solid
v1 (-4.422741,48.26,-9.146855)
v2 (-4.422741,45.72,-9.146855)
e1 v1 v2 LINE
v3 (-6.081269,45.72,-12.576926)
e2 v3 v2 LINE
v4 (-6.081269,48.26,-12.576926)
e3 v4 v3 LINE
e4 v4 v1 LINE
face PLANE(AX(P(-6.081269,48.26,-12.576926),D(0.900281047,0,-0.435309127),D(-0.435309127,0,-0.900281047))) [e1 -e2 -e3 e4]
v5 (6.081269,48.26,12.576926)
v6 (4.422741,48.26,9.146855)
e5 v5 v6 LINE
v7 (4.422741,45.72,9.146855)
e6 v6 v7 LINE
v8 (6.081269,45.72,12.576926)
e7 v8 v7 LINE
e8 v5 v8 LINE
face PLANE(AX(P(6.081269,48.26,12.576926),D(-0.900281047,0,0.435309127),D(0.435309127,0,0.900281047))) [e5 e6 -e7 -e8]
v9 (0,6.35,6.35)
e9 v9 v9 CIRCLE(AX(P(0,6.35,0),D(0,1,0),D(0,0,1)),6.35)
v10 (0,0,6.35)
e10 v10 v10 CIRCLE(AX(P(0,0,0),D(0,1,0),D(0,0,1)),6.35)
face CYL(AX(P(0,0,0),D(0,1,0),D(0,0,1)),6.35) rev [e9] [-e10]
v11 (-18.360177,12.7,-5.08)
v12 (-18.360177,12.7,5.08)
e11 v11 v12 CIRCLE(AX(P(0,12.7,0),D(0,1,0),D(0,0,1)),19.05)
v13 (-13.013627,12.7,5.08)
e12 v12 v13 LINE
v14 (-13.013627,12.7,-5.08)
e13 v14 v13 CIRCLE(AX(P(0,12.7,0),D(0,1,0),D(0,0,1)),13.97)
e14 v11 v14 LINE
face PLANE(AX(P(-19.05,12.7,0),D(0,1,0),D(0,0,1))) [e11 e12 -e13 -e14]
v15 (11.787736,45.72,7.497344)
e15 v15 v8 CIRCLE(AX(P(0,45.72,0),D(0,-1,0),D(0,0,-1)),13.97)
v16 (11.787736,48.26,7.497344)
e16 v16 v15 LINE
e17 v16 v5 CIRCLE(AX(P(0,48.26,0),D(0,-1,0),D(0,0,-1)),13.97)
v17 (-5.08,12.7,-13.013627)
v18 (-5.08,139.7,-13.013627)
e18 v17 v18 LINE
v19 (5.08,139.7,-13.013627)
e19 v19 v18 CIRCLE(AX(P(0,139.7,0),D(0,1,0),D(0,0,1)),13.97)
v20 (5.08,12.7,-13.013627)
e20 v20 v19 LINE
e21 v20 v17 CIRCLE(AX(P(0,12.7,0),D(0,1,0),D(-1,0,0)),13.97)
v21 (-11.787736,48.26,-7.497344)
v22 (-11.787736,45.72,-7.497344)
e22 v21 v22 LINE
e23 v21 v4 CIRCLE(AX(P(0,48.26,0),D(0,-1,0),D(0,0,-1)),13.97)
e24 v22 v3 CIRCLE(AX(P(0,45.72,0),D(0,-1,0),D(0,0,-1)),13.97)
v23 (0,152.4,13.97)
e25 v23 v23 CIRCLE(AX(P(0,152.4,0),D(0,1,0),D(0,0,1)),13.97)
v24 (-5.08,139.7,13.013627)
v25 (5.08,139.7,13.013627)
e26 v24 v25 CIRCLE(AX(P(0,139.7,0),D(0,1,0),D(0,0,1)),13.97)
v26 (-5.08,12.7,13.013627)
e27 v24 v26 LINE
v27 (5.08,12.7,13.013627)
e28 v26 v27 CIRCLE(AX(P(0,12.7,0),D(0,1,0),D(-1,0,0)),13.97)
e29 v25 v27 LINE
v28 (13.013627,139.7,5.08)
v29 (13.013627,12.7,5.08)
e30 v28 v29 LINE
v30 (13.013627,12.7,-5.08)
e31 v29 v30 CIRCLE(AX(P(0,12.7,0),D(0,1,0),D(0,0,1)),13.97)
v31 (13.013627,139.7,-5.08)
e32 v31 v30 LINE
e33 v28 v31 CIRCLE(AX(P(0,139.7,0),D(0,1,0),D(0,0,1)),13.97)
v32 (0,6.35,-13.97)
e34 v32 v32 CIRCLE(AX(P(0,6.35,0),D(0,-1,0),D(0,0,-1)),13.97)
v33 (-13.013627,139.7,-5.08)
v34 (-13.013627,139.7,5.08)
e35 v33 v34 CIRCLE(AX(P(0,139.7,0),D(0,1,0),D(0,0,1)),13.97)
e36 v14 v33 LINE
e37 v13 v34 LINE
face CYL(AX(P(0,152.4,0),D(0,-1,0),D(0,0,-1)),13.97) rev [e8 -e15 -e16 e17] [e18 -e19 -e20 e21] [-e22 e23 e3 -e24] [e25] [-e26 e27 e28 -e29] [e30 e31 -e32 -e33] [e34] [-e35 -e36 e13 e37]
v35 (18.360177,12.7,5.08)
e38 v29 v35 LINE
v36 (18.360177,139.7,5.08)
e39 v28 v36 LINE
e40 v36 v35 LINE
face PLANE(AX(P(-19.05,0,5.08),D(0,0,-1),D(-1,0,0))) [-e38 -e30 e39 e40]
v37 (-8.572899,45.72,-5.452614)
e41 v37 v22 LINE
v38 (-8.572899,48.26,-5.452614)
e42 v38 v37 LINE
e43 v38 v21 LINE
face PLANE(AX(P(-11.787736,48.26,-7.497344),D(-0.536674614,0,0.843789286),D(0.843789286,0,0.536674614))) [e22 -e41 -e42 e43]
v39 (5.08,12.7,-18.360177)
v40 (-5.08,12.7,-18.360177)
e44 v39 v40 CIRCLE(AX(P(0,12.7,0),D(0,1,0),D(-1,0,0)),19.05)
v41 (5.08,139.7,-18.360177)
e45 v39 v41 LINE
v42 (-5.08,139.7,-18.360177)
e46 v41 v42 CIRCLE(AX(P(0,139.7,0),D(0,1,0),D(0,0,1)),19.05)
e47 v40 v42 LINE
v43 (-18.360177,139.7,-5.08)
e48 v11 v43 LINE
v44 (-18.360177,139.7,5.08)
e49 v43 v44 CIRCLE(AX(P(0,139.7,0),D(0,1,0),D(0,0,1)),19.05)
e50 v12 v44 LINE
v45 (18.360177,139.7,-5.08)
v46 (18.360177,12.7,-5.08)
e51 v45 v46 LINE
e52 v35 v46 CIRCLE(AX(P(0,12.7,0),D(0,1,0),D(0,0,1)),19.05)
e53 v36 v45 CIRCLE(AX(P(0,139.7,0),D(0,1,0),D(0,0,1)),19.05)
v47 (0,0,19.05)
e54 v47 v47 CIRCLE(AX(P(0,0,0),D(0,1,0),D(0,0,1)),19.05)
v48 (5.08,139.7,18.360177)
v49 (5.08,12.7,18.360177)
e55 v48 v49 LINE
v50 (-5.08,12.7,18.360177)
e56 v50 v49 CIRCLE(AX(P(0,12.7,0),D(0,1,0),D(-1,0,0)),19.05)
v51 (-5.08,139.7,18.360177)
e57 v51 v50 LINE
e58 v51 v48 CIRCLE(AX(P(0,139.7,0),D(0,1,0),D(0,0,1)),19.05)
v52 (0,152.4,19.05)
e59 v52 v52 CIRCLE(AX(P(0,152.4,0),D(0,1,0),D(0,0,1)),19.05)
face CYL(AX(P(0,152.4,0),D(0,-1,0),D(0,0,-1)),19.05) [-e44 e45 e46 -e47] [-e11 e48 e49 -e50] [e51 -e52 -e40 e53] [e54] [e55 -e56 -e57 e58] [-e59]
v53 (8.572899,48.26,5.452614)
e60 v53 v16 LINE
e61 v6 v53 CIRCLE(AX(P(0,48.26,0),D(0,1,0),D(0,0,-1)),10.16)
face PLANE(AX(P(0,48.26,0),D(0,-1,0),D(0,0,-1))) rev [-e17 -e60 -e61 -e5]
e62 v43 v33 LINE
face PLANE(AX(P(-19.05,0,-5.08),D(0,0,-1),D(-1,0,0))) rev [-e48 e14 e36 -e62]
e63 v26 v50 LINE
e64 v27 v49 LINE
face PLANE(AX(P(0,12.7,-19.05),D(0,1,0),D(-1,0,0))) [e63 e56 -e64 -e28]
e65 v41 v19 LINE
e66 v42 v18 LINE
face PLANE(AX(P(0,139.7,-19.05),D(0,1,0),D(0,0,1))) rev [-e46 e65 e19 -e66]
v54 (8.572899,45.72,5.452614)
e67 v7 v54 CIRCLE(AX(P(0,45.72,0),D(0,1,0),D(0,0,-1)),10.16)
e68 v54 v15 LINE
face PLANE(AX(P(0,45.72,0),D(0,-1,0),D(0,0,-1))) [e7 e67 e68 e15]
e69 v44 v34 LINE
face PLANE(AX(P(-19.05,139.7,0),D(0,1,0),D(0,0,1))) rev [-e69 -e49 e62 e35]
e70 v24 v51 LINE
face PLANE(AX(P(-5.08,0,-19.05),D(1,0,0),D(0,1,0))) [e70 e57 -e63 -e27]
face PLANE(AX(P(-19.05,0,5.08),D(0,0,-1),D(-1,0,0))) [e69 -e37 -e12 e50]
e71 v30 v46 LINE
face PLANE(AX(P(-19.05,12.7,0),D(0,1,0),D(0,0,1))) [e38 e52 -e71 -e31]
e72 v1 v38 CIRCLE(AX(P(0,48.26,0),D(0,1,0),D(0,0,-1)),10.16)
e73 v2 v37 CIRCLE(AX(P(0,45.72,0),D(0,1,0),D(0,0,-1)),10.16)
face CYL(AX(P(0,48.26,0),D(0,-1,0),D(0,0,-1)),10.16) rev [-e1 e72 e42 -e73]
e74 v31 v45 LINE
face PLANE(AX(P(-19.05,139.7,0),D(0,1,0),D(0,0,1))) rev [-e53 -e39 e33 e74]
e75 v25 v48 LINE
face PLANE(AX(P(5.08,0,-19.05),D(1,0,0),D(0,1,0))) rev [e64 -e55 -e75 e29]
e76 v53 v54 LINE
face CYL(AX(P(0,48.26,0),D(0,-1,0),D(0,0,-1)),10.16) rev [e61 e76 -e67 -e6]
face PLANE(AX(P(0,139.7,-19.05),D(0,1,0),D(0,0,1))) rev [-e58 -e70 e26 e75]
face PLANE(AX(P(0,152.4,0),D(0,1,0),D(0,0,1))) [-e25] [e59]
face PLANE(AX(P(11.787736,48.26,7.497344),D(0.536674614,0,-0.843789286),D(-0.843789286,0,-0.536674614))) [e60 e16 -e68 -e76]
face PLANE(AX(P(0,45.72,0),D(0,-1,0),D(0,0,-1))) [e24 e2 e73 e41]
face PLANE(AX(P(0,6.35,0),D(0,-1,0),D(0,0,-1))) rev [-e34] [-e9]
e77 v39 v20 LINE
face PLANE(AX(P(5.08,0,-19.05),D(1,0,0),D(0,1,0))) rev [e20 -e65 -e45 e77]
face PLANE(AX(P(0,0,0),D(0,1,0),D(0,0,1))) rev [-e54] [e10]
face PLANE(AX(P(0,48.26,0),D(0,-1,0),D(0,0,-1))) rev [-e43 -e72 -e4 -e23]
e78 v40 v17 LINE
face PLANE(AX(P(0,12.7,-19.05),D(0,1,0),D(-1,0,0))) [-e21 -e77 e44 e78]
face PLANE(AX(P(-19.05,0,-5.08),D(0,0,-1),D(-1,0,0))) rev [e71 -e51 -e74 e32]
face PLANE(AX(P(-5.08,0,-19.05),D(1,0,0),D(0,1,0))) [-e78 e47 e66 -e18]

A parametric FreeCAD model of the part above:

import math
import FreeCAD as App
import Part
import Sketcher
Q = App.Units.Quantity

doc = App.newDocument("Part")
body = doc.addObject("PartDesign::Body", "Body")

sketch1 = body.newObject("Sketcher::SketchObject", "Sketch")
sketch1.AttachmentSupport = (doc.getObject("XZ_Plane"), [""])
sketch1.MapMode = "FlatFace"
sketch1.addGeometry(Part.Circle(App.Vector(0, 0, 0), App.Vector(0, 0, 1), 19.05), False)
sketch1.addGeometry(Part.Circle(App.Vector(0, 0, 0), App.Vector(0, 0, 1), 13.97), False)
sketch1.addConstraint(Sketcher.Constraint("Coincident", 0, 3, -1, 1))
sketch1.addConstraint(Sketcher.Constraint("Coincident", 1, 3, -1, 1))
sketch1.addConstraint(Sketcher.Constraint("Diameter", 0, Q("1.5 in")))
sketch1.addConstraint(Sketcher.Constraint("Diameter", 1, Q("1.1 in")))
pad1 = body.newObject("PartDesign::Pad", "Pad")
pad1.Profile = sketch1
pad1.Length = Q("6 in")
pad1.Reversed = True

sketch2 = body.newObject("Sketcher::SketchObject", "Sketch001")
sketch2.AttachmentSupport = (doc.getObject("XZ_Plane"), [""])
sketch2.MapMode = "FlatFace"
sketch2.addGeometry(Part.Circle(App.Vector(0, 0, 0), App.Vector(0, 0, 1), 13.97), False)
sketch2.addConstraint(Sketcher.Constraint("Coincident", 0, 3, -1, 1))
sketch2.addConstraint(Sketcher.Constraint("Diameter", 0, Q("1.1 in")))
pad2 = body.newObject("PartDesign::Pad", "Pad001")
pad2.Profile = sketch2
pad2.Length = Q("0.25 in")
pad2.Reversed = True

sketch3 = body.newObject("Sketcher::SketchObject", "Sketch002")
sketch3.AttachmentSupport = (doc.getObject("XY_Plane"), [""])
sketch3.MapMode = "FlatFace"
sketch3.AttachmentOffset = App.Placement(App.Vector(0, 0, 0.65 * 25.4), App.Rotation())
sketch3.addGeometry(Part.Circle(App.Vector(0, 101.6, 0), App.Vector(0, 0, 1), 2.2479), False)
sketch3.addConstraint(Sketcher.Constraint("PointOnObject", 0, 3, -2))
sketch3.addConstraint(Sketcher.Constraint("Diameter", 0, Q("0.177 in")))
sketch3.addConstraint(Sketcher.Constraint("DistanceY", -1, 1, 0, 3, Q("4 in")))
pocket1 = body.newObject("PartDesign::Pocket", "Pocket")
pocket1.Profile = sketch3
pocket1.Type = "ThroughAll"
pocket1.Midplane = True

sketch4 = body.newObject("Sketcher::SketchObject", "Sketch003")
sketch4.AttachmentSupport = (doc.getObject("YZ_Plane"), [""])
sketch4.MapMode = "FlatFace"
sketch4.addGeometry(Part.LineSegment(App.Vector(139.7, 5.08, 0), App.Vector(12.7, 5.08, 0)), False)
sketch4.addGeometry(Part.LineSegment(App.Vector(12.7, 5.08, 0), App.Vector(12.7, -5.08, 0)), False)
sketch4.addGeometry(Part.LineSegment(App.Vector(12.7, -5.08, 0), App.Vector(139.7, -5.08, 0)), False)
sketch4.addGeometry(Part.LineSegment(App.Vector(139.7, -5.08, 0), App.Vector(139.7, 5.08, 0)), False)
sketch4.addConstraint(Sketcher.Constraint("Coincident", 0, 2, 1, 1))
sketch4.addConstraint(Sketcher.Constraint("Coincident", 1, 2, 2, 1))
sketch4.addConstraint(Sketcher.Constraint("Coincident", 2, 2, 3, 1))
sketch4.addConstraint(Sketcher.Constraint("Coincident", 3, 2, 0, 1))
sketch4.addConstraint(Sketcher.Constraint("Horizontal", 0))
sketch4.addConstraint(Sketcher.Constraint("Vertical", 1))
sketch4.addConstraint(Sketcher.Constraint("Horizontal", 2))
sketch4.addConstraint(Sketcher.Constraint("Vertical", 3))
sketch4.addConstraint(Sketcher.Constraint("DistanceX", 0, 2, 0, 1, Q("5 in")))
sketch4.addConstraint(Sketcher.Constraint("DistanceY", 1, 2, 1, 1, Q("0.4 in")))
sketch4.addConstraint(Sketcher.Constraint("DistanceX", -1, 1, 0, 2, Q("0.5 in")))
sketch4.addConstraint(Sketcher.Constraint("DistanceY", -1, 1, 0, 2, Q("0.2 in")))
pocket2 = body.newObject("PartDesign::Pocket", "Pocket001")
pocket2.Profile = sketch4
pocket2.Type = "ThroughAll"
pocket2.Midplane = True

sketch5 = body.newObject("Sketcher::SketchObject", "Sketch004")
sketch5.AttachmentSupport = (doc.getObject("XY_Plane"), [""])
sketch5.MapMode = "FlatFace"
sketch5.addGeometry(Part.LineSegment(App.Vector(-5.08, 139.7, 0), App.Vector(-5.08, 12.7, 0)), False)
sketch5.addGeometry(Part.LineSegment(App.Vector(-5.08, 12.7, 0), App.Vector(5.08, 12.7, 0)), False)
sketch5.addGeometry(Part.LineSegment(App.Vector(5.08, 12.7, 0), App.Vector(5.08, 139.7, 0)), False)
sketch5.addGeometry(Part.LineSegment(App.Vector(5.08, 139.7, 0), App.Vector(-5.08, 139.7, 0)), False)
sketch5.addConstraint(Sketcher.Constraint("Coincident", 0, 2, 1, 1))
sketch5.addConstraint(Sketcher.Constraint("Coincident", 1, 2, 2, 1))
sketch5.addConstraint(Sketcher.Constraint("Coincident", 2, 2, 3, 1))
sketch5.addConstraint(Sketcher.Constraint("Coincident", 3, 2, 0, 1))
sketch5.addConstraint(Sketcher.Constraint("Vertical", 0))
sketch5.addConstraint(Sketcher.Constraint("Horizontal", 1))
sketch5.addConstraint(Sketcher.Constraint("Vertical", 2))
sketch5.addConstraint(Sketcher.Constraint("Horizontal", 3))
sketch5.addConstraint(Sketcher.Constraint("DistanceY", 0, 2, 0, 1, Q("5 in")))
sketch5.addConstraint(Sketcher.Constraint("DistanceX", 1, 1, 1, 2, Q("0.4 in")))
sketch5.addConstraint(Sketcher.Constraint("DistanceX", 0, 2, -1, 1, Q("0.2 in")))
sketch5.addConstraint(Sketcher.Constraint("DistanceY", -1, 1, 0, 2, Q("0.5 in")))
pocket3 = body.newObject("PartDesign::Pocket", "Pocket002")
pocket3.Profile = sketch5
pocket3.Type = "ThroughAll"
pocket3.Midplane = True

sketch6 = body.newObject("Sketcher::SketchObject", "Sketch005")
sketch6.AttachmentSupport = (doc.getObject("XZ_Plane"), [""])
sketch6.MapMode = "FlatFace"
sketch6.AttachmentOffset = App.Placement(App.Vector(0, 0, -0.25 * 25.4), App.Rotation())
sketch6.addGeometry(Part.Circle(App.Vector(0, 0, 0), App.Vector(0, 0, 1), 6.35), False)
sketch6.addConstraint(Sketcher.Constraint("Coincident", 0, 3, -1, 1))
sketch6.addConstraint(Sketcher.Constraint("Diameter", 0, Q("0.5 in")))
pocket4 = body.newObject("PartDesign::Pocket", "Pocket003")
pocket4.Profile = sketch6
pocket4.Type = "ThroughAll"
pocket4.Reversed = True

sketch7 = body.newObject("Sketcher::SketchObject", "Sketch006")
sketch7.AttachmentSupport = (doc.getObject("XZ_Plane"), [""])
sketch7.MapMode = "FlatFace"
sketch7.AttachmentOffset = App.Placement(App.Vector(0, 0, -1.8 * 25.4), App.Rotation())
sketch7.addGeometry(Part.LineSegment(App.Vector(8.572899, 5.452614, 0), App.Vector(11.787736, 7.497344, 0)), False)
sketch7.addGeometry(Part.ArcOfCircle(Part.Circle(App.Vector(0, 0, 0), App.Vector(0, 0, 1), 13.97), math.radians(32.457551), math.radians(64.195034)), False)
sketch7.addGeometry(Part.LineSegment(App.Vector(6.081269, 12.576926, 0), App.Vector(4.422741, 9.146855, 0)), False)
sketch7.addGeometry(Part.ArcOfCircle(Part.Circle(App.Vector(0, 0, 0), App.Vector(0, 0, 1), 10.16), math.radians(32.457551), math.radians(64.195034)), False)
sketch7.addGeometry(Part.LineSegment(App.Vector(-8.572899, -5.452614, 0), App.Vector(-11.787736, -7.497344, 0)), False)
sketch7.addGeometry(Part.ArcOfCircle(Part.Circle(App.Vector(0, 0, 0), App.Vector(0, 0, 1), 13.97), math.radians(-147.542449), math.radians(-115.804966)), False)
sketch7.addGeometry(Part.LineSegment(App.Vector(-6.081269, -12.576926, 0), App.Vector(-4.422741, -9.146855, 0)), False)
sketch7.addGeometry(Part.ArcOfCircle(Part.Circle(App.Vector(0, 0, 0), App.Vector(0, 0, 1), 10.16), math.radians(-147.542449), math.radians(-115.804966)), False)
sketch7.addConstraint(Sketcher.Constraint("Coincident", 0, 2, 1, 1))
sketch7.addConstraint(Sketcher.Constraint("Coincident", 1, 2, 2, 1))
sketch7.addConstraint(Sketcher.Constraint("Coincident", 2, 2, 3, 2))
sketch7.addConstraint(Sketcher.Constraint("Coincident", 3, 1, 0, 1))
sketch7.addConstraint(Sketcher.Constraint("Coincident", 4, 2, 5, 1))
sketch7.addConstraint(Sketcher.Constraint("Coincident", 5, 2, 6, 1))
sketch7.addConstraint(Sketcher.Constraint("Coincident", 6, 2, 7, 2))
sketch7.addConstraint(Sketcher.Constraint("Coincident", 7, 1, 4, 1))
sketch7.addConstraint(Sketcher.Constraint("Coincident", 1, 3, -1, 1))
sketch7.addConstraint(Sketcher.Constraint("Coincident", 3, 3, -1, 1))
sketch7.addConstraint(Sketcher.Constraint("Coincident", 5, 3, -1, 1))
sketch7.addConstraint(Sketcher.Constraint("Coincident", 7, 3, -1, 1))
sketch7.addConstraint(Sketcher.Constraint("Equal", 1, 5))
sketch7.addConstraint(Sketcher.Constraint("Equal", 3, 7))
sketch7.addConstraint(Sketcher.Constraint("Parallel", 0, 4))
sketch7.addConstraint(Sketcher.Constraint("Parallel", 2, 6))
sketch7.addConstraint(Sketcher.Constraint("Radius", 3, Q("0.4 in")))
sketch7.addConstraint(Sketcher.Constraint("Radius", 1, Q("0.55 in")))
sketch7.addConstraint(Sketcher.Constraint("DistanceX", -1, 1, 3, 1, 8.572899))
sketch7.addConstraint(Sketcher.Constraint("DistanceX", 7, 1, -1, 1, 8.572899))
sketch7.addConstraint(Sketcher.Constraint("DistanceY", 4, 2, 2, 2, 16.6442))
sketch7.addConstraint(Sketcher.Constraint("DistanceX", -1, 1, 1, 2, 6.081269))
sketch7.addConstraint(Sketcher.Constraint("DistanceX", -1, 1, 2, 2, 4.422741))
sketch7.addConstraint(Sketcher.Constraint("DistanceX", 5, 2, -1, 1, 6.081269))
pad3 = body.newObject("PartDesign::Pad", "Pad002")
pad3.Profile = sketch7
pad3.Length = Q("0.1 in")
pad3.Reversed = True

doc.recompute()
